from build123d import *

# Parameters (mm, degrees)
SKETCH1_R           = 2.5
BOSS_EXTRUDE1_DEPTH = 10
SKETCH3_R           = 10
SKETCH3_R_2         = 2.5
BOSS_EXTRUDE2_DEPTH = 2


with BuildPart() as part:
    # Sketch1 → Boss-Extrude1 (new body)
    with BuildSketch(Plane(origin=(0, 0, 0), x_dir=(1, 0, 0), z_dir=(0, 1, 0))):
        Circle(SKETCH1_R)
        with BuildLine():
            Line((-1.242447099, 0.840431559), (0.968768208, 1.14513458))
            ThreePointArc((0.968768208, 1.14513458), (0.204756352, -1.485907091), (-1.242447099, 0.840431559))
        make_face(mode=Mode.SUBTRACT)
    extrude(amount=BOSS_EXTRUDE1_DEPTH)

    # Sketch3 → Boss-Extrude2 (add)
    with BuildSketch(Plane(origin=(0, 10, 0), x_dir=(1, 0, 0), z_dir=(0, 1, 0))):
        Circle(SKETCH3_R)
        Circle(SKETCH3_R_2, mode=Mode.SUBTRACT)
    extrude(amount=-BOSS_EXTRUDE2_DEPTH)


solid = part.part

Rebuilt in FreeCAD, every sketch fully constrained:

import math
import FreeCAD as App
import Part
import Sketcher
Q = App.Units.Quantity

doc = App.newDocument("Part")
body = doc.addObject("PartDesign::Body", "Body")

sketch1 = body.newObject("Sketcher::SketchObject", "Sketch")
sketch1.AttachmentSupport = (doc.getObject("XZ_Plane"), [""])
sketch1.MapMode = "FlatFace"
sketch1.addGeometry([
    Part.Circle(App.Vector(0, 0, 0), App.Vector(0, 0, 1), 2.5),
    Part.ArcOfCircle(Part.Circle(App.Vector(-0.000036, -0.000011, 0), App.Vector(0, 0, 1), 1.499964), math.radians(-49.767909), math.radians(214.076143)),
    Part.LineSegment(App.Vector(-1.242447, -0.840432, 0), App.Vector(0.968768, -1.145135, 0)),
], False)
sketch1.addConstraint([
    Sketcher.Constraint("Coincident", 1, 1, 2, 2),
    Sketcher.Constraint("Coincident", 2, 1, 1, 2),
    Sketcher.Constraint("Coincident", 0, 3, -1, 1),
    Sketcher.Constraint("Diameter", 0, Q("5 mm")),
    Sketcher.Constraint("Radius", 1, Q("1.499964 mm")),
    Sketcher.Constraint("Distance", 2, Q("2.23211 mm")),
    Sketcher.Constraint("DistanceX", -1, 1, 1, 1, Q("0.968768 mm")),
    Sketcher.Constraint("DistanceY", 2, 1, -1, 1, Q("0.840432 mm")),
    Sketcher.Constraint("DistanceX", 2, 1, 1, 3, Q("1.242411 mm")),
])
pad1 = body.newObject("PartDesign::Pad", "Pad")
pad1.Profile = sketch1
pad1.Length = 10
pad1.Reversed = True

sketch2 = body.newObject("Sketcher::SketchObject", "Sketch001")
sketch2.AttachmentSupport = (doc.getObject("XZ_Plane"), [""])
sketch2.MapMode = "FlatFace"
sketch2.AttachmentOffset = App.Placement(App.Vector(0, 0, -10), App.Rotation())
sketch2.addGeometry([
    Part.Circle(App.Vector(0, 0, 0), App.Vector(0, 0, 1), 10),
    Part.Circle(App.Vector(0, 0, 0), App.Vector(0, 0, 1), 2.5),
], False)
sketch2.addConstraint([
    Sketcher.Constraint("Coincident", 0, 3, -1, 1),
    Sketcher.Constraint("Coincident", 1, 3, -1, 1),
    Sketcher.Constraint("Diameter", 0, Q("20 mm")),
    Sketcher.Constraint("Diameter", 1, Q("5 mm")),
])
pad2 = body.newObject("PartDesign::Pad", "Pad001")
pad2.Profile = sketch2
pad2.Length = 2

doc.recompute()
